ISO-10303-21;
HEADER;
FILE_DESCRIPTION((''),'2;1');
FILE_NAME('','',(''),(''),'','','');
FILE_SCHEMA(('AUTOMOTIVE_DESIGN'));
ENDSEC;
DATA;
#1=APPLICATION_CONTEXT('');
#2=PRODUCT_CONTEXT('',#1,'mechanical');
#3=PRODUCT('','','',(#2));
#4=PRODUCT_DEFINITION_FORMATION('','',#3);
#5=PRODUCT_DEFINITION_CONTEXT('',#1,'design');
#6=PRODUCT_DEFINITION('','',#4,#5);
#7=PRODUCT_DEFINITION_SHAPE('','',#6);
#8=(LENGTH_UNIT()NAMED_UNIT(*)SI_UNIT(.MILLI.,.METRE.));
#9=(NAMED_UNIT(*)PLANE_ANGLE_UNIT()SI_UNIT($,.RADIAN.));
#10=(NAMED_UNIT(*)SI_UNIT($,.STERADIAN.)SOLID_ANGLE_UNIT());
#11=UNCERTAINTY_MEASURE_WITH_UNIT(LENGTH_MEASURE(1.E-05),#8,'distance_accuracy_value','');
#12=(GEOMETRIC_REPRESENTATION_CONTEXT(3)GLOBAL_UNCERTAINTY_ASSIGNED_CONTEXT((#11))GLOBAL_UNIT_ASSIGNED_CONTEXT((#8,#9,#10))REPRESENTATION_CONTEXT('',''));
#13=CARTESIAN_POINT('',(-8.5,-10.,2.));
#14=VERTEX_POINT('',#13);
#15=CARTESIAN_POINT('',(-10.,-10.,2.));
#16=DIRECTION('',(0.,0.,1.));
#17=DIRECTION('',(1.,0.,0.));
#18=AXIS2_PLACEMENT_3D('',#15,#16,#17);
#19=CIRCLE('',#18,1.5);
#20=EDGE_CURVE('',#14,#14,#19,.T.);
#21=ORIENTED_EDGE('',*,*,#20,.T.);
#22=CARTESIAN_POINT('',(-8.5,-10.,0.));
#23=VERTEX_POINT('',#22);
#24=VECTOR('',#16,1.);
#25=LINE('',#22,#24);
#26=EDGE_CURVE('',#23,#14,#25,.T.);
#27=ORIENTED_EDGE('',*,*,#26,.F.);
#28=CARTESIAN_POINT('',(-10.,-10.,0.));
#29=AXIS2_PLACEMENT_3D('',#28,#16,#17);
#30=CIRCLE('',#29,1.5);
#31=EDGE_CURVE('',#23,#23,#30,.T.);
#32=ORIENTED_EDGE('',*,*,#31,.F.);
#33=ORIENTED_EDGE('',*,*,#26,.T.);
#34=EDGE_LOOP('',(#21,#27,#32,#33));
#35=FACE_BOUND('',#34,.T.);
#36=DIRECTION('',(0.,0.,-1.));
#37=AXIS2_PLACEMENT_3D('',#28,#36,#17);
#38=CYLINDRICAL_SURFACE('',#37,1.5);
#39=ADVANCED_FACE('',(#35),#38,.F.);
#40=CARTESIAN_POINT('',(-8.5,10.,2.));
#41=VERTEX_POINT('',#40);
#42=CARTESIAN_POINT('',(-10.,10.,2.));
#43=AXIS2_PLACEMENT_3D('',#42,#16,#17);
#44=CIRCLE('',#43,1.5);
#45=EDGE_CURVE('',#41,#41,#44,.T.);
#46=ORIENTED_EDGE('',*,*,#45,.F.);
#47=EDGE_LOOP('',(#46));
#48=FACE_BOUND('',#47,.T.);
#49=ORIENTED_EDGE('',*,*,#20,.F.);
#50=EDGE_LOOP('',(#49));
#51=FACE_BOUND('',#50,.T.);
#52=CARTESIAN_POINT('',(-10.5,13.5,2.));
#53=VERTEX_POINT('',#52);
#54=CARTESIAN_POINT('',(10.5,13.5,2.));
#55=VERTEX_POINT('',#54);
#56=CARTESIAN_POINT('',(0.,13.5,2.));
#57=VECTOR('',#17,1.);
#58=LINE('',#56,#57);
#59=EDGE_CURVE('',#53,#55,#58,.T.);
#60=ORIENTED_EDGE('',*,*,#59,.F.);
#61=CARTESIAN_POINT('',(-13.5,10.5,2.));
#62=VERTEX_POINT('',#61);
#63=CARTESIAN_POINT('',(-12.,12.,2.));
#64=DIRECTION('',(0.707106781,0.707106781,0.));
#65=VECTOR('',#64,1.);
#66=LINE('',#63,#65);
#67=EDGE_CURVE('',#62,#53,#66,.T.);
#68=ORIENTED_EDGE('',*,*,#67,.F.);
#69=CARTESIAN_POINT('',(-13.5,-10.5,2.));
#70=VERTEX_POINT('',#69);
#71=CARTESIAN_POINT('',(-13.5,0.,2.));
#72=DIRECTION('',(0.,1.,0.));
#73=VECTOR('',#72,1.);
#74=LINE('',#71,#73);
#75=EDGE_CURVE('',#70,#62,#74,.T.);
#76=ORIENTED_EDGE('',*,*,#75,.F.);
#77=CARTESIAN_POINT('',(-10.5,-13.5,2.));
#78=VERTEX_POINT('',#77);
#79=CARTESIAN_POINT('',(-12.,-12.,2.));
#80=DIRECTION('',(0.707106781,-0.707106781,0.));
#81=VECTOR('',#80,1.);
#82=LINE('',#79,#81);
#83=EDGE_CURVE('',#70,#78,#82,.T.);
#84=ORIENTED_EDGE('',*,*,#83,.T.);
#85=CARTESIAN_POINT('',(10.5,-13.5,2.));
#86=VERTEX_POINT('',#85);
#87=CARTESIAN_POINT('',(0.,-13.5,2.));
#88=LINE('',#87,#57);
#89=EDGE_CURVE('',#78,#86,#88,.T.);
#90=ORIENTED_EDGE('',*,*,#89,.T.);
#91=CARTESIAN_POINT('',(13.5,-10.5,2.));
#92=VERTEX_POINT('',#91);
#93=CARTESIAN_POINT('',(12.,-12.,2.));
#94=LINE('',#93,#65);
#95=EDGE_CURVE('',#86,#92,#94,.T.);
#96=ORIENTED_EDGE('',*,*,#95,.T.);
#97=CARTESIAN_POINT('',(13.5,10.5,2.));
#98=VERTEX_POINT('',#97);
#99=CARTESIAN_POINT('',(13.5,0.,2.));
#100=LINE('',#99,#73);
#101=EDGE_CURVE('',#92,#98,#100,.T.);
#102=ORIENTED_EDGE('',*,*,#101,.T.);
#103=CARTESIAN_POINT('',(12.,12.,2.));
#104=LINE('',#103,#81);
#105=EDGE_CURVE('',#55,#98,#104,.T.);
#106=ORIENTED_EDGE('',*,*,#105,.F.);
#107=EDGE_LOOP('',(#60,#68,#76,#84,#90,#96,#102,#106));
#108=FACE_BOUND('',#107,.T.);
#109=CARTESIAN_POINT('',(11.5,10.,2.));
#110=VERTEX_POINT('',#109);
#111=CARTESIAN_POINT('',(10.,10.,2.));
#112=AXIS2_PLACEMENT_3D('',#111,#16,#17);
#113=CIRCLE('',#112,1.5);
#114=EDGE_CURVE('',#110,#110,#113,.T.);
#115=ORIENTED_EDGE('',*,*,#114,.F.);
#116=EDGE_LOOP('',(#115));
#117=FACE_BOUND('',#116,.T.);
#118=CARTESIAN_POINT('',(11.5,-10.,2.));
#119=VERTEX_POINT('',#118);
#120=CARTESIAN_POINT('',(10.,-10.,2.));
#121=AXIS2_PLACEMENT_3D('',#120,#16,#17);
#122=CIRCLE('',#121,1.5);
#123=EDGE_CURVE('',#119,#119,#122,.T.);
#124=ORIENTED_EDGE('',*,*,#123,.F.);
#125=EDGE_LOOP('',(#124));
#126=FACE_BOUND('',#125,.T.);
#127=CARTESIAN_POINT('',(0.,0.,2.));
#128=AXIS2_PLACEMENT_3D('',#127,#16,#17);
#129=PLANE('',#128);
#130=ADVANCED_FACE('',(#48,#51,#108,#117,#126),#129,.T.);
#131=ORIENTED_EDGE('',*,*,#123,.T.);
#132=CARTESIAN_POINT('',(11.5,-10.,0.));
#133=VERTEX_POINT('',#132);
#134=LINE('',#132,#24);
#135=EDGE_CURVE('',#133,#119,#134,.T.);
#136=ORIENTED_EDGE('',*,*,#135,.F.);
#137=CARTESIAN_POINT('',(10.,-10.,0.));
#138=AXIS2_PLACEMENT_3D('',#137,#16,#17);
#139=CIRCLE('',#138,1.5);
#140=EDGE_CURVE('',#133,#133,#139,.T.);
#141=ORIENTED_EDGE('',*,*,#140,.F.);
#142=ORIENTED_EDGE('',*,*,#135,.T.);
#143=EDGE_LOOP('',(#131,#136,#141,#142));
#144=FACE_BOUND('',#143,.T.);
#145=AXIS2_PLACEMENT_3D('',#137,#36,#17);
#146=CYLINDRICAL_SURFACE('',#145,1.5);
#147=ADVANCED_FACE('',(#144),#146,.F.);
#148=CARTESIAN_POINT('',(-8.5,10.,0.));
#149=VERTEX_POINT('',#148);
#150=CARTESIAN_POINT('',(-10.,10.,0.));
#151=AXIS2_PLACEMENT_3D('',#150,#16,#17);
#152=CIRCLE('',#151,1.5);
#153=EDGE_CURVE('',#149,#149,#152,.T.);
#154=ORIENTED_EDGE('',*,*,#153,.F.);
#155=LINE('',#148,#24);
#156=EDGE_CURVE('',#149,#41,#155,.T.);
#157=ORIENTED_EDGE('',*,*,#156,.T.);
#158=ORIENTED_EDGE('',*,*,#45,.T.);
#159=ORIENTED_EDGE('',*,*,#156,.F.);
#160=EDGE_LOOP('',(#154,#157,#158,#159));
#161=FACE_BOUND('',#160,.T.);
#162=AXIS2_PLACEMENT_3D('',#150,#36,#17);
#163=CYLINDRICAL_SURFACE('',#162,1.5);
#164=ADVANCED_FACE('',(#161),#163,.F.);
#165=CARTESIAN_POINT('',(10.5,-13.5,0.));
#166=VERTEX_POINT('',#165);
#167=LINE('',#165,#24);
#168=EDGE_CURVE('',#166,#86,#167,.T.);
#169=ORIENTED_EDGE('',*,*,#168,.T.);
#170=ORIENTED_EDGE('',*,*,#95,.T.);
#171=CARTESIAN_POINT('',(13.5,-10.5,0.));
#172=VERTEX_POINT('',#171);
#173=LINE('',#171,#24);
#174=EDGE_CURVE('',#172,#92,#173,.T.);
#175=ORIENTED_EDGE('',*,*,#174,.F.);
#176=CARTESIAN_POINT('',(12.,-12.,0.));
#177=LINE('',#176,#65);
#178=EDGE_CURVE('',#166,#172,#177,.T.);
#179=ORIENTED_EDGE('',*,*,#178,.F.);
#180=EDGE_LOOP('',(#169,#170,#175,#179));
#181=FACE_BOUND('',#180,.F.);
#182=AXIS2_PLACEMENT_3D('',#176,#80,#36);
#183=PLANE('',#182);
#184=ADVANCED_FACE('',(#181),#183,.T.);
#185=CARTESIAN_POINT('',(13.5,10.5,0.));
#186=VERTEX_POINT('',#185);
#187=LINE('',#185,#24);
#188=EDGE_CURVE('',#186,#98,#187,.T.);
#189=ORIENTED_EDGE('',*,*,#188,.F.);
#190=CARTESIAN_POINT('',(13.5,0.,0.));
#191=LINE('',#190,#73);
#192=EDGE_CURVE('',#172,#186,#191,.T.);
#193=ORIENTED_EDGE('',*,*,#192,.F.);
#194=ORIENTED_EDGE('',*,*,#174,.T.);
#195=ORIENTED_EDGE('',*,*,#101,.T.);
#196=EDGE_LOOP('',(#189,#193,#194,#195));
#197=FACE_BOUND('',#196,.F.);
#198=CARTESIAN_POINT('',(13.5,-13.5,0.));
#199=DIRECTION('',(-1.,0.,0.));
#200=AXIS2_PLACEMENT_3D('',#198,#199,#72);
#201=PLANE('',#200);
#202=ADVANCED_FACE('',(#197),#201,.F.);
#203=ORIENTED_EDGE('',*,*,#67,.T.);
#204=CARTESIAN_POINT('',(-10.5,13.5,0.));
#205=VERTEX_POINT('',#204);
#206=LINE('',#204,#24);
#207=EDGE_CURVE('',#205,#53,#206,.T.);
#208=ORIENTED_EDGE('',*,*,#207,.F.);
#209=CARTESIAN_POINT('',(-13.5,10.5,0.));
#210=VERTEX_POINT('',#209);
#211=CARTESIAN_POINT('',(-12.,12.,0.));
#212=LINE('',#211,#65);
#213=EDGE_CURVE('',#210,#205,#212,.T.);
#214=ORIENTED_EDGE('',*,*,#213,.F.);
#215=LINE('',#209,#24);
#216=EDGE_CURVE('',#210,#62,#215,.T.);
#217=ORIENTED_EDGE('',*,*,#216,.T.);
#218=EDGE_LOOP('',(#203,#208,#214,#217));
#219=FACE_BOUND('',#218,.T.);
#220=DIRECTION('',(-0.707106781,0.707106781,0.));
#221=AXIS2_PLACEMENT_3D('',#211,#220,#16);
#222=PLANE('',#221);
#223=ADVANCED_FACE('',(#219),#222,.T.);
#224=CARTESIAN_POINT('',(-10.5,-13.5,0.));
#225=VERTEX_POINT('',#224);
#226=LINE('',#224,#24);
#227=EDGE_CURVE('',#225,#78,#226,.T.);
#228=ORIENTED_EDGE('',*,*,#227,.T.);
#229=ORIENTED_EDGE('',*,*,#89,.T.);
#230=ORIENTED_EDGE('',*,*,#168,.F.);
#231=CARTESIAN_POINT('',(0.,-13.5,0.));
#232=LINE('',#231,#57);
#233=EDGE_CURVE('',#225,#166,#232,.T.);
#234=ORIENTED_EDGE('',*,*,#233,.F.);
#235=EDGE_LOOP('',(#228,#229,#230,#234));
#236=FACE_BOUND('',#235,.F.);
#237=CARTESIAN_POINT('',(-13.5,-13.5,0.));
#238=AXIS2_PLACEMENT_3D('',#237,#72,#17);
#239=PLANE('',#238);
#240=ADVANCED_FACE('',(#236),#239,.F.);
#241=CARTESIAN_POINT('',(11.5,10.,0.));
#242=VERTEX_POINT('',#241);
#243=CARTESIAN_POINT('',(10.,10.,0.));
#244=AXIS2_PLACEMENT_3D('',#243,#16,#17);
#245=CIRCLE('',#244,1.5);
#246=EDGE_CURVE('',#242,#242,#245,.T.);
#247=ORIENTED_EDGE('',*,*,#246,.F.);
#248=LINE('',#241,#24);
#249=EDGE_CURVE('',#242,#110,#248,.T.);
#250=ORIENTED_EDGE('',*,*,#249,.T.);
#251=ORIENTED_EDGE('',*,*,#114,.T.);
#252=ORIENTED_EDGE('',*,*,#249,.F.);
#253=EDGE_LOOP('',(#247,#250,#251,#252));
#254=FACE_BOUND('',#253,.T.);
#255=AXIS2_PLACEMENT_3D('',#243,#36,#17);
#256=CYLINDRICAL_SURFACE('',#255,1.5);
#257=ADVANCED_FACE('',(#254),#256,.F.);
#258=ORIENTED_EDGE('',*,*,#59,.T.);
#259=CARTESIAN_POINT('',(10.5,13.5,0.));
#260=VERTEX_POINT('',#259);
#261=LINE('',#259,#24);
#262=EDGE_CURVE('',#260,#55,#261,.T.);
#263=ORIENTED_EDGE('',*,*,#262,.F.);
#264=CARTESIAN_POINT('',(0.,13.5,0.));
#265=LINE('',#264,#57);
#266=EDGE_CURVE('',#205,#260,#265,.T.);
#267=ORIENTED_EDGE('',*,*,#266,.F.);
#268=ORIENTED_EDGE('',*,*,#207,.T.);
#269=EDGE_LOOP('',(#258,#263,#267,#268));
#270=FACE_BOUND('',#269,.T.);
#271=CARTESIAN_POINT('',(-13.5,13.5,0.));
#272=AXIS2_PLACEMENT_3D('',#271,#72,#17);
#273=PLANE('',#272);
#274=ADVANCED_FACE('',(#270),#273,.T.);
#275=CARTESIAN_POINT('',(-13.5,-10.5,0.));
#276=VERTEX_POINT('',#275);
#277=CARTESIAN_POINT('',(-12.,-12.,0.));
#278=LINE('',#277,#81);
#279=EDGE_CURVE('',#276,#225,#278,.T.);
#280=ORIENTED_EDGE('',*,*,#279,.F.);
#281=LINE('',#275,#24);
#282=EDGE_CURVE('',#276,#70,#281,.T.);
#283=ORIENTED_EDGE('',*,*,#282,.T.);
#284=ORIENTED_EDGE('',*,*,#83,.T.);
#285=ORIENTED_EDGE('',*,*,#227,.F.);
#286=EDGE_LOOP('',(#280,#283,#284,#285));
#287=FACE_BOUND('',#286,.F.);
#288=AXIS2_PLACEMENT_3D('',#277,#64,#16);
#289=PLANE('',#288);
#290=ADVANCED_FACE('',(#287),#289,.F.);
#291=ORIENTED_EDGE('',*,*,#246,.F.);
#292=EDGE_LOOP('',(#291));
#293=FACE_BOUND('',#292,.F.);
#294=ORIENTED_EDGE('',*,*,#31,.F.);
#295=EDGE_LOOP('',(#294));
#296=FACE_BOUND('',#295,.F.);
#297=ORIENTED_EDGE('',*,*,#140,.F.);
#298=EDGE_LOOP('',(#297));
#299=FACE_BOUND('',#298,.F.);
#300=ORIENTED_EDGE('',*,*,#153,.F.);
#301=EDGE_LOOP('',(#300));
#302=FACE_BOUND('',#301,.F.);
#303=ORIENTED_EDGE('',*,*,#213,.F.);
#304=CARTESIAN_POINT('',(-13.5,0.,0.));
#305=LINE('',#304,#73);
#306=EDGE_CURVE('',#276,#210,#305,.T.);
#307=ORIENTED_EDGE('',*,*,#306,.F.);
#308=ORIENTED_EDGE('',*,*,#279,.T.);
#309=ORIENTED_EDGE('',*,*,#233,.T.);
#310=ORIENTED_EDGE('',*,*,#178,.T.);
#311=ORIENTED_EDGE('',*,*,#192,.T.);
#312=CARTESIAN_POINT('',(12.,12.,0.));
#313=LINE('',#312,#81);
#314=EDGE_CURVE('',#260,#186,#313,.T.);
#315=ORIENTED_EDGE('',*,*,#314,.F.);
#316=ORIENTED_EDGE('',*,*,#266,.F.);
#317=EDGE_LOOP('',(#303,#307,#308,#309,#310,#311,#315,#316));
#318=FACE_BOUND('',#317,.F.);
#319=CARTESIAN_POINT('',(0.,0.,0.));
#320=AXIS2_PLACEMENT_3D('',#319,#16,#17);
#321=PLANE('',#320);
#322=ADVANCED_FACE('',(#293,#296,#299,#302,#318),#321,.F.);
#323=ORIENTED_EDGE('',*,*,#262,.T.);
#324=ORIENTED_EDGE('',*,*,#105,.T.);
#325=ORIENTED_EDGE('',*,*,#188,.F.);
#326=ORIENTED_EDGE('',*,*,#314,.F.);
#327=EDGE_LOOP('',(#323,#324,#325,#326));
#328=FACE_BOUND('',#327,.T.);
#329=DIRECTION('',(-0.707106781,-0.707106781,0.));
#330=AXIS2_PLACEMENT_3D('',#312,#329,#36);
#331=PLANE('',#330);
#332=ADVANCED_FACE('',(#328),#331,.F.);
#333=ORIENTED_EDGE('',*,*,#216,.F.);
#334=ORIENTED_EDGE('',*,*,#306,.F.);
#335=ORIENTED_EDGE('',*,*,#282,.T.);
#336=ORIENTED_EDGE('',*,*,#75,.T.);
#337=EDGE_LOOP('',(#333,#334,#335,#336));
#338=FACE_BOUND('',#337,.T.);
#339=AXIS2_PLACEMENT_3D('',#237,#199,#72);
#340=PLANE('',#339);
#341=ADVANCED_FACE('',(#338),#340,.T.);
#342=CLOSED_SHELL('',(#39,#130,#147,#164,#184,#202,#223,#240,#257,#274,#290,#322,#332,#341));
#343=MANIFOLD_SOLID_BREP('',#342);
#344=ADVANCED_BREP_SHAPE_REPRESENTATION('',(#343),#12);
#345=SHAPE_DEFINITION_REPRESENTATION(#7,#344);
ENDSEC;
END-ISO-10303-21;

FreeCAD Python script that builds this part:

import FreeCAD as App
import Part
import Sketcher

V = App.Vector
Q = App.Units.Quantity


def edges_at(feature, points):
    """Names of the edges that pass closest to the given points."""
    edges = feature.Shape.Edges
    near = lambda p: min(range(len(edges)), key=lambda i: edges[i].distToShape(Part.Vertex(*p))[0])
    return sorted({f"Edge{near(p) + 1}" for p in points})

doc = App.newDocument("Part")
body = doc.addObject("PartDesign::Body", "Body")

sketch1 = body.newObject("Sketcher::SketchObject", "Sketch")
sketch1.AttachmentSupport = (doc.getObject("XY_Plane"), [""])
sketch1.MapMode = "FlatFace"
sketch1.addGeometry([
    Part.LineSegment(V(-13.5, 13.5, 0), V(-13.5, -13.5, 0)),
    Part.LineSegment(V(-13.5, -13.5, 0), V(13.5, -13.5, 0)),
    Part.LineSegment(V(13.5, -13.5, 0), V(13.5, 13.5, 0)),
    Part.LineSegment(V(13.5, 13.5, 0), V(-13.5, 13.5, 0)),
    Part.Circle(V(-10, -10, 0), V(0, 0, 1), 1.5),
    Part.Circle(V(10, -10, 0), V(0, 0, 1), 1.5),
    Part.Circle(V(-10, 10, 0), V(0, 0, 1), 1.5),
    Part.Circle(V(10, 10, 0), V(0, 0, 1), 1.5),
], False)
sketch1.addConstraint([
    Sketcher.Constraint("Coincident", 0, 2, 1, 1),
    Sketcher.Constraint("Coincident", 1, 2, 2, 1),
    Sketcher.Constraint("Coincident", 2, 2, 3, 1),
    Sketcher.Constraint("Coincident", 3, 2, 0, 1),
    Sketcher.Constraint("Vertical", 0),
    Sketcher.Constraint("Horizontal", 1),
    Sketcher.Constraint("Vertical", 2),
    Sketcher.Constraint("Horizontal", 3),
    Sketcher.Constraint("Equal", 4, 5),
    Sketcher.Constraint("Equal", 5, 6),
    Sketcher.Constraint("Equal", 6, 7),
    Sketcher.Constraint("Symmetric", 5, 3, 6, 3, -1, 1),
    Sketcher.Constraint("Symmetric", 4, 3, 7, 3, -1, 1),
    Sketcher.Constraint("Symmetric", 0, 2, 2, 2, -1, 1),
    Sketcher.Constraint("Symmetric", 4, 3, 5, 3, -2),
    Sketcher.Constraint("Equal", 3, 0),
    Sketcher.Constraint("Diameter", 4, Q("3 mm")),
    Sketcher.Constraint("DistanceX", 1, 1, 1, 2, Q("27 mm")),
    Sketcher.Constraint("DistanceX", 4, 3, -1, 1, Q("10 mm")),
    Sketcher.Constraint("DistanceY", 4, 3, -1, 1, Q("10 mm")),
])
pad1 = body.newObject("PartDesign::Pad", "Pad")
pad1.Profile = sketch1
pad1.Length = 2
doc.recompute()

chamfer = body.newObject("PartDesign::Chamfer", "Chamfer")
chamfer.Base = (pad1, edges_at(pad1, [
    (13.5, -13.5, 1),
    (-13.5, -13.5, 1),
    (13.5, 13.5, 1),
    (-13.5, 13.5, 1),
]))
chamfer.Size = 3

doc.recompute()
